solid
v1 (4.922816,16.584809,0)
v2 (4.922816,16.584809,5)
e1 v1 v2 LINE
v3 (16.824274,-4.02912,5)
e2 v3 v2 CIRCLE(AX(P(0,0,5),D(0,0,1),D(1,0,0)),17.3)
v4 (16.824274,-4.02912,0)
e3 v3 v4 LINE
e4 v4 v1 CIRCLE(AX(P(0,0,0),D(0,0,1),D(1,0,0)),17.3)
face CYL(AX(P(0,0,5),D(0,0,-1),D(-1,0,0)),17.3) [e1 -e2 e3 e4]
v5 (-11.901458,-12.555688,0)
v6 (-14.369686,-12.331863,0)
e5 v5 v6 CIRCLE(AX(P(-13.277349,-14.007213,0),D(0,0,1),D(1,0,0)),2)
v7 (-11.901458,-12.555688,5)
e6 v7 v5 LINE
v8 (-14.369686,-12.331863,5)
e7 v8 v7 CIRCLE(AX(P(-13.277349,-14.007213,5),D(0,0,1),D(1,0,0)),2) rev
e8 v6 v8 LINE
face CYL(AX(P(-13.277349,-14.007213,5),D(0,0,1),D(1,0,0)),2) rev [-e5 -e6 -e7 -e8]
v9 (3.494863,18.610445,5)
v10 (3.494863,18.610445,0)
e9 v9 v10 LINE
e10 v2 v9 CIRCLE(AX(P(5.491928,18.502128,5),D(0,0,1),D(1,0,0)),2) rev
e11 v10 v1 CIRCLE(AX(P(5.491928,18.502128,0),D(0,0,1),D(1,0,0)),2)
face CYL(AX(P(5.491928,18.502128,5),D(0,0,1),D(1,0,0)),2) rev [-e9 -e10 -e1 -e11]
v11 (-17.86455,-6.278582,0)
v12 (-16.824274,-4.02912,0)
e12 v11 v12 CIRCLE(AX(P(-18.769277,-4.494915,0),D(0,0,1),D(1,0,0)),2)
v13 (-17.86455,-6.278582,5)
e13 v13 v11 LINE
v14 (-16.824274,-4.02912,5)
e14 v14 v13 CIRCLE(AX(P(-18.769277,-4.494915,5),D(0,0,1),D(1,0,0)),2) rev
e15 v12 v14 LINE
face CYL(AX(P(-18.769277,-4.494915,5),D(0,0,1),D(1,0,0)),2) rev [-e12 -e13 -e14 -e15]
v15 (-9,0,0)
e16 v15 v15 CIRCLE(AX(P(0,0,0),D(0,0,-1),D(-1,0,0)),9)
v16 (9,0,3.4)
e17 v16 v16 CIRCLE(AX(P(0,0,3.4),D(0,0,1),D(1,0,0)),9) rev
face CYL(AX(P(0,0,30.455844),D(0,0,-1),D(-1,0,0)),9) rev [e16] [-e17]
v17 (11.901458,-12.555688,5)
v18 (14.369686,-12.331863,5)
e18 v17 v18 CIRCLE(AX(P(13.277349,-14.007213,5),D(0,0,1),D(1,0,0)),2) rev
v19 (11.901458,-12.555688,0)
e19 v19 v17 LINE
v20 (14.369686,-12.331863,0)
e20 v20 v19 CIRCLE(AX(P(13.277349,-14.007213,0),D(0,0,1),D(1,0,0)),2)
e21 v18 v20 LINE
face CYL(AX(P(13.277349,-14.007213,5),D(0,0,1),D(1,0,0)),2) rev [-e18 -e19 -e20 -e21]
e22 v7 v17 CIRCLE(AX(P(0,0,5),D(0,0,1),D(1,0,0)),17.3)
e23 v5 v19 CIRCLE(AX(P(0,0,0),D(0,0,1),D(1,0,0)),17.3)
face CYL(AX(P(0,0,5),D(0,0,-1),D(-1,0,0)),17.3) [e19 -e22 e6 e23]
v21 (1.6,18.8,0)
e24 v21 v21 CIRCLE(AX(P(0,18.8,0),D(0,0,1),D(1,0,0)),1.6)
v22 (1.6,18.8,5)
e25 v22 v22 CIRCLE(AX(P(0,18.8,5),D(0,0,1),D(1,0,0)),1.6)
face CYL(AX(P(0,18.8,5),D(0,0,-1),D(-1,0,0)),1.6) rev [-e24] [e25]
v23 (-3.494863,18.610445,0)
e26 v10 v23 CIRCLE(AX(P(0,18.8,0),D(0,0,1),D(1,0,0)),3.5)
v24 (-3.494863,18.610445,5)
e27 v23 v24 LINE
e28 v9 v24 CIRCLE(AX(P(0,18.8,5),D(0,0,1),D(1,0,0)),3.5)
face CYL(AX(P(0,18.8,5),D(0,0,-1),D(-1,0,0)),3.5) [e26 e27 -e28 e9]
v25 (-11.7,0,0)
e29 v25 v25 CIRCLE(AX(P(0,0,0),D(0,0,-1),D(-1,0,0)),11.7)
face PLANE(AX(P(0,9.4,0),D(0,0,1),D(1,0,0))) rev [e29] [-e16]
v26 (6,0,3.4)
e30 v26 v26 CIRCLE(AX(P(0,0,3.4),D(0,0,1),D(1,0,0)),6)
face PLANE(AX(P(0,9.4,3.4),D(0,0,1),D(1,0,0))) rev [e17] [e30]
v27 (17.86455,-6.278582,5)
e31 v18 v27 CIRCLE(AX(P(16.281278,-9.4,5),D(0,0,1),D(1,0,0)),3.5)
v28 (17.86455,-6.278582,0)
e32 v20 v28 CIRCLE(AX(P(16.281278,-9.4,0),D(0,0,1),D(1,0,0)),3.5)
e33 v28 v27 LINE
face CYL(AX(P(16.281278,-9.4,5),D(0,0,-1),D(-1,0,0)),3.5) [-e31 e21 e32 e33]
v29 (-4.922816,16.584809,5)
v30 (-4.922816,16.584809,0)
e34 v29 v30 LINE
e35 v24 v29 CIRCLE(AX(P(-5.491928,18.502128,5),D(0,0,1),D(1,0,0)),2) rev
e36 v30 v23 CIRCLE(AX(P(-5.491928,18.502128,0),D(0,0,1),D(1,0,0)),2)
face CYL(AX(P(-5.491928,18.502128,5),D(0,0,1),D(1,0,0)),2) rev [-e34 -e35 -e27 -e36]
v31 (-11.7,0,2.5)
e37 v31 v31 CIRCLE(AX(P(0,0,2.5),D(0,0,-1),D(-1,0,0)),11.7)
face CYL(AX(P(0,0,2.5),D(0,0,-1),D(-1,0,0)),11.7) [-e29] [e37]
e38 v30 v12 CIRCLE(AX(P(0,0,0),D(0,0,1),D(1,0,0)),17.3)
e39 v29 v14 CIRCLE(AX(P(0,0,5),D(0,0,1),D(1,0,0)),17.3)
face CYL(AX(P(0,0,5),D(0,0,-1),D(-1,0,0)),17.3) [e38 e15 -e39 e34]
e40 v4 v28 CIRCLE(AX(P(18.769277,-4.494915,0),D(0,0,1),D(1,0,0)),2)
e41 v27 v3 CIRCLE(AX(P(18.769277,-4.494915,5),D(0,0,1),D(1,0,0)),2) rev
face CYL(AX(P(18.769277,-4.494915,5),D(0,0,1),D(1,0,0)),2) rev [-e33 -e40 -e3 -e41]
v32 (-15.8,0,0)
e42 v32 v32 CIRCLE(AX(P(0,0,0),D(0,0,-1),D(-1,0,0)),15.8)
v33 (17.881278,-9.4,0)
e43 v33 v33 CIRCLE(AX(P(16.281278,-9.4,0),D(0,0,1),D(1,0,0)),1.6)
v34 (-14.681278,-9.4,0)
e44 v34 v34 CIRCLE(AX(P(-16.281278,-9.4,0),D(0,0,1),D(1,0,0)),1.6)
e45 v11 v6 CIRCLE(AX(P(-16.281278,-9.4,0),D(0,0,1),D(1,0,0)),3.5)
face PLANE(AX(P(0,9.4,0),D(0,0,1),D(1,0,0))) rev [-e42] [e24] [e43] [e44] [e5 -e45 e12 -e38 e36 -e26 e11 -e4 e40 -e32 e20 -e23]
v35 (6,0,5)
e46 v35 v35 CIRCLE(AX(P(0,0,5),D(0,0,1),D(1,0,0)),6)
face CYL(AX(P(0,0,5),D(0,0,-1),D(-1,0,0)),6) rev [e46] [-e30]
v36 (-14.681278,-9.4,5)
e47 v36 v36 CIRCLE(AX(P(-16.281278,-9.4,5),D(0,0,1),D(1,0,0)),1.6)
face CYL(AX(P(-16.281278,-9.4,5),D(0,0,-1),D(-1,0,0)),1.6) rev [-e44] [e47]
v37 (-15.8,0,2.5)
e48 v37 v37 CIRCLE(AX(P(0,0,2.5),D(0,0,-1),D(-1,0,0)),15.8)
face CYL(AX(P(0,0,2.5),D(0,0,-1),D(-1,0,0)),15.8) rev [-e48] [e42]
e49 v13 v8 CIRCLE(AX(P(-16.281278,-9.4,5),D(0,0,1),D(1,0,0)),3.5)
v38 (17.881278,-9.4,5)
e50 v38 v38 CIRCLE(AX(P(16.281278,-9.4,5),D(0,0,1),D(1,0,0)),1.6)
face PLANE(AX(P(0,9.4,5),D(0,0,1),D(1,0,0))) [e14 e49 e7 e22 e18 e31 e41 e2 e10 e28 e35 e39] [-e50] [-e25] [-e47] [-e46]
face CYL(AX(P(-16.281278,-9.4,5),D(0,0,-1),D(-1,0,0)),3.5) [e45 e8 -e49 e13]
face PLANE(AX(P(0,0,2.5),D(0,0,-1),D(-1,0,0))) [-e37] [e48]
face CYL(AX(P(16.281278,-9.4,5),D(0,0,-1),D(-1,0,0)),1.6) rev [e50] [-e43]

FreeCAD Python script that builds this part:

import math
import FreeCAD as App
import Part
import Sketcher


def edges_at(feature, points):
    """Names of the edges that pass closest to the given points."""
    edges = feature.Shape.Edges
    near = lambda p: min(range(len(edges)), key=lambda i: edges[i].distToShape(Part.Vertex(*p))[0])
    return sorted({f"Edge{near(p) + 1}" for p in points})

doc = App.newDocument("Part")
body = doc.addObject("PartDesign::Body", "Body")

sketch1 = body.newObject("Sketcher::SketchObject", "Sketch")
sketch1.AttachmentSupport = (doc.getObject("XY_Plane"), [""])
sketch1.MapMode = "FlatFace"
sketch1.addGeometry([
    Part.ArcOfCircle(Part.Circle(App.Vector(0, 0, 0), App.Vector(0, 0, 1), 17.3), math.radians(100.059551), math.radians(199.940449)),
    Part.ArcOfCircle(Part.Circle(App.Vector(-16.281278, -9.4, 0), App.Vector(0, 0, 1), 3.5), math.radians(89.6979), math.radians(330.3021)),
    Part.ArcOfCircle(Part.Circle(App.Vector(0, 0, 0), App.Vector(0, 0, 1), 17.3), math.radians(-139.940449), math.radians(-40.059551)),
    Part.ArcOfCircle(Part.Circle(App.Vector(16.281278, -9.4, 0), App.Vector(0, 0, 1), 3.5), math.radians(-150.3021), math.radians(90.3021)),
    Part.ArcOfCircle(Part.Circle(App.Vector(0, 0, 0), App.Vector(0, 0, 1), 17.3), math.radians(-19.940449), math.radians(79.940449)),
    Part.ArcOfCircle(Part.Circle(App.Vector(0, 18.8, 0), App.Vector(0, 0, 1), 3.5), math.radians(-30.3021), math.radians(210.3021)),
    Part.Circle(App.Vector(-16.281278, -9.4, 0), App.Vector(0, 0, 1), 1.6),
    Part.Circle(App.Vector(16.281278, -9.4, 0), App.Vector(0, 0, 1), 1.6),
    Part.Circle(App.Vector(0, 0, 0), App.Vector(0, 0, 1), 6),
    Part.Circle(App.Vector(0, 18.8, 0), App.Vector(0, 0, 1), 1.6),
], False)
sketch1.addConstraint([
    Sketcher.Constraint("Coincident", 0, 2, 1, 1),
    Sketcher.Constraint("Coincident", 1, 2, 2, 1),
    Sketcher.Constraint("Coincident", 2, 2, 3, 1),
    Sketcher.Constraint("Coincident", 3, 2, 4, 1),
    Sketcher.Constraint("Coincident", 4, 2, 5, 1),
    Sketcher.Constraint("Coincident", 5, 2, 0, 1),
    Sketcher.Constraint("Coincident", 0, 3, -1, 1),
    Sketcher.Constraint("Coincident", 2, 3, -1, 1),
    Sketcher.Constraint("Coincident", 4, 3, -1, 1),
    Sketcher.Constraint("Coincident", 8, 3, -1, 1),
    Sketcher.Constraint("Coincident", 6, 3, 1, 3),
    Sketcher.Constraint("Coincident", 7, 3, 3, 3),
    Sketcher.Constraint("Coincident", 9, 3, 5, 3),
    Sketcher.Constraint("Equal", 0, 2),
    Sketcher.Constraint("Equal", 1, 3),
    Sketcher.Constraint("Equal", 2, 4),
    Sketcher.Constraint("Equal", 3, 5),
    Sketcher.Constraint("Equal", 6, 7),
    Sketcher.Constraint("Equal", 7, 9),
    Sketcher.Constraint("Symmetric", 1, 3, 3, 3, -2),
    Sketcher.Constraint("PointOnObject", 5, 3, -2),
    Sketcher.Constraint("Diameter", 8, 12.0),
    Sketcher.Constraint("Diameter", 6, 3.2),
    Sketcher.Constraint("Radius", 0, 17.3),
    Sketcher.Constraint("Radius", 1, 3.5),
    Sketcher.Constraint("DistanceY", 1, 3, -1, 1, 9.4),
    Sketcher.Constraint("DistanceY", -1, 1, 5, 3, 18.8),
    Sketcher.Constraint("DistanceX", 0, 2, 1, 2, 3.02182),
])
pad1 = body.newObject("PartDesign::Pad", "Pad")
pad1.Profile = sketch1
pad1.Length = 5
doc.recompute()

fillet = body.newObject("PartDesign::Fillet", "Fillet")
fillet.Base = (pad1, edges_at(pad1, [
    (16.263, -5.9, 2.5),
    (13.241, -11.134, 2.5),
    (-13.241, -11.134, 2.5),
    (-16.263, -5.9, 2.5),
    (-3.022, 17.034, 2.5),
    (3.022, 17.034, 2.5),
]))
fillet.Radius = 2

sketch2 = body.newObject("Sketcher::SketchObject", "Sketch001")
sketch2.AttachmentSupport = (doc.getObject("XY_Plane"), [""])
sketch2.MapMode = "FlatFace"
sketch2.addGeometry([
    Part.Circle(App.Vector(0, 0, 0), App.Vector(0, 0, 1), 15.8),
    Part.Circle(App.Vector(0, 0, 0), App.Vector(0, 0, 1), 11.7),
], False)
sketch2.addConstraint([
    Sketcher.Constraint("Coincident", 0, 3, -1, 1),
    Sketcher.Constraint("Coincident", 1, 3, -1, 1),
    Sketcher.Constraint("Diameter", 0, 31.6),
    Sketcher.Constraint("Diameter", 1, 23.4),
])
pocket1 = body.newObject("PartDesign::Pocket", "Pocket")
pocket1.Profile = sketch2
pocket1.Length = 2.5
pocket1.Reversed = True

sketch3 = body.newObject("Sketcher::SketchObject", "Sketch002")
sketch3.AttachmentSupport = (doc.getObject("XY_Plane"), [""])
sketch3.MapMode = "FlatFace"
sketch3.addGeometry(Part.Circle(App.Vector(0, 0, 0), App.Vector(0, 0, 1), 9), False)
sketch3.addConstraint([
    Sketcher.Constraint("Coincident", 0, 3, -1, 1),
    Sketcher.Constraint("Diameter", 0, 18.0),
])
pocket2 = body.newObject("PartDesign::Pocket", "Pocket001")
pocket2.Profile = sketch3
pocket2.Length = 3.4
pocket2.Reversed = True

doc.recompute()
